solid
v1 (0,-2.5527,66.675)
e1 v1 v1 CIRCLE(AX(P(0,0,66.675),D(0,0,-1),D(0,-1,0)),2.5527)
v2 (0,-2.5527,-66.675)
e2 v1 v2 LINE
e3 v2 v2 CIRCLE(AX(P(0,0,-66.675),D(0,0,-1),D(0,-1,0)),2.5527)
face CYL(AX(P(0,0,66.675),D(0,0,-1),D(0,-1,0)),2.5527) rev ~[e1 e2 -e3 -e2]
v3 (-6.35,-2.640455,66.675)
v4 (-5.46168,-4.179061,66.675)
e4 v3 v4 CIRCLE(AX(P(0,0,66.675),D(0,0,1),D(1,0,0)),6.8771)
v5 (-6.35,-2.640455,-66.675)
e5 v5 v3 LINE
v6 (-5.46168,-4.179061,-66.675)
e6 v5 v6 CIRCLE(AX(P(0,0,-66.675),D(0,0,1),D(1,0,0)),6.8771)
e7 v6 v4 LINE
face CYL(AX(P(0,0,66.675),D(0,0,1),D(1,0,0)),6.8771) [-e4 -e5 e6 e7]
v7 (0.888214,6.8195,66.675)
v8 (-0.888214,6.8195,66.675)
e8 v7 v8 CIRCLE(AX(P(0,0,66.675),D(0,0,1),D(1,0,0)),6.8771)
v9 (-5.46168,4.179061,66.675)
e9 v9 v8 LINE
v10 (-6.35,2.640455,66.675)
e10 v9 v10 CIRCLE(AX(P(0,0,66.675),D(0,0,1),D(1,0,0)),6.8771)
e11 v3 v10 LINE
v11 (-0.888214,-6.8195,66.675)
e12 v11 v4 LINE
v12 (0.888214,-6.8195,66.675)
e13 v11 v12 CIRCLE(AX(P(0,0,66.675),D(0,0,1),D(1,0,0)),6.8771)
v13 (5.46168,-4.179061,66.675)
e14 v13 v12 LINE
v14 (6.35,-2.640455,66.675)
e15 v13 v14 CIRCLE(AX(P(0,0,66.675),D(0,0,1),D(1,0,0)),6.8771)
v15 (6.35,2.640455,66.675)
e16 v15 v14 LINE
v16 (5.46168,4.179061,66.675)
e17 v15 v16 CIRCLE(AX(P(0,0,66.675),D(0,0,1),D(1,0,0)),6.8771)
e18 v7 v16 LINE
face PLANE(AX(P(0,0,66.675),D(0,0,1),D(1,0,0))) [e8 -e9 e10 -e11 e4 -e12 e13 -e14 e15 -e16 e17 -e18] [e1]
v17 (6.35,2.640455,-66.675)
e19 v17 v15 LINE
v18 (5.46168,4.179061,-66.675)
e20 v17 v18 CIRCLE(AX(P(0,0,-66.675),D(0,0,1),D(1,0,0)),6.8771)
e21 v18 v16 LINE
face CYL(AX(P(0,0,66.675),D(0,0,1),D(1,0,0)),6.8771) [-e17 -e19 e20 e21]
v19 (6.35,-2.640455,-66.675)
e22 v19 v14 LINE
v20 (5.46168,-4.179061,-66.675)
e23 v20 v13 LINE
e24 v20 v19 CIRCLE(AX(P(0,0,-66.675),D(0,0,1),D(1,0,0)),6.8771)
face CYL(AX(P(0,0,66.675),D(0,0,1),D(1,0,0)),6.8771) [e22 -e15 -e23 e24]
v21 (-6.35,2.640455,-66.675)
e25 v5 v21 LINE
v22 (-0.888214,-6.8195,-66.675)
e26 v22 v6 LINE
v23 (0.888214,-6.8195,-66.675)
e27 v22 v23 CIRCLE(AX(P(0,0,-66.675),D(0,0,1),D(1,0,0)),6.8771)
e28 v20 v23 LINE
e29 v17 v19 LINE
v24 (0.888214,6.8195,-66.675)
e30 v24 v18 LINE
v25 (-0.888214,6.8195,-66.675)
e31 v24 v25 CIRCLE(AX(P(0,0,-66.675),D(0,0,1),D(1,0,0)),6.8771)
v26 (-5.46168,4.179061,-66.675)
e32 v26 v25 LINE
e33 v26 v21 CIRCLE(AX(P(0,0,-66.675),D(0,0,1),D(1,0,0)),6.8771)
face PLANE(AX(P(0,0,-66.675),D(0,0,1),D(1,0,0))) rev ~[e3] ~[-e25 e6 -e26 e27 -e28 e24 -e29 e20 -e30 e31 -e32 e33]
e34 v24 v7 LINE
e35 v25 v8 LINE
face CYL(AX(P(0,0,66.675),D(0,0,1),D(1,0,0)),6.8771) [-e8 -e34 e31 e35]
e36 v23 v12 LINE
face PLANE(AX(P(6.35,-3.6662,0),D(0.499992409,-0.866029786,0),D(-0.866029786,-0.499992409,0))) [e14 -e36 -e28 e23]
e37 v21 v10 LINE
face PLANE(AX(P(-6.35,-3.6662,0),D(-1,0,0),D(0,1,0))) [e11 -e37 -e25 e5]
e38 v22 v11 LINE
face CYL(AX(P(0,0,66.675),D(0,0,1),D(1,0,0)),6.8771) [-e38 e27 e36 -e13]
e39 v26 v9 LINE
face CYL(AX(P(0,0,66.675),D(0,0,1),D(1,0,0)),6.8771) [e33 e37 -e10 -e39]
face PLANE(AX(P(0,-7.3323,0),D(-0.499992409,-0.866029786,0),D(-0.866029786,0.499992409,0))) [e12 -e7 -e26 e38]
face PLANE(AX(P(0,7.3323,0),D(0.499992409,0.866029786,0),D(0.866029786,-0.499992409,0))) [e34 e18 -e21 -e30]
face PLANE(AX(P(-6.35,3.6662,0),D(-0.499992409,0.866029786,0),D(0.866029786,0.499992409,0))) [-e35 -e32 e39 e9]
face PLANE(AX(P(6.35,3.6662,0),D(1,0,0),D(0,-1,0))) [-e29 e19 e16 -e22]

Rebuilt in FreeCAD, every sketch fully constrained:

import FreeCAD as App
import Part
import Sketcher
Q = App.Units.Quantity

doc = App.newDocument("Part")
body = doc.addObject("PartDesign::Body", "Body")

sketch1 = body.newObject("Sketcher::SketchObject", "Sketch")
sketch1.AttachmentSupport = (doc.getObject("XY_Plane"), [""])
sketch1.MapMode = "FlatFace"
sketch1.addGeometry([
    Part.LineSegment(App.Vector(-6, 4, 0), App.Vector(-6, -4, 0)),
    Part.LineSegment(App.Vector(-6, -4, 0), App.Vector(0, -7, 0)),
    Part.LineSegment(App.Vector(0, -7, 0), App.Vector(6, -4, 0)),
    Part.LineSegment(App.Vector(6, -4, 0), App.Vector(6, 4, 0)),
    Part.LineSegment(App.Vector(6, 4, 0), App.Vector(0, 7, 0)),
    Part.LineSegment(App.Vector(0, 7, 0), App.Vector(-6, 4, 0)),
], False)
sketch1.addConstraint([
    Sketcher.Constraint("Coincident", 0, 2, 1, 1),
    Sketcher.Constraint("Coincident", 1, 2, 2, 1),
    Sketcher.Constraint("Coincident", 2, 2, 3, 1),
    Sketcher.Constraint("Coincident", 3, 2, 4, 1),
    Sketcher.Constraint("Coincident", 4, 2, 5, 1),
    Sketcher.Constraint("Coincident", 5, 2, 0, 1),
    Sketcher.Constraint("Vertical", 0),
    Sketcher.Constraint("Vertical", 3),
    Sketcher.Constraint("Symmetric", 0, 2, 3, 2, -1, 1),
    Sketcher.Constraint("Symmetric", 1, 2, 4, 2, -1, 1),
    Sketcher.Constraint("PointOnObject", 1, 2, -2),
    Sketcher.Constraint("Parallel", 2, 5),
    Sketcher.Constraint("Horizontal", 0, 2, 2, 2),
    Sketcher.Constraint("DistanceX", 0, 2, 2, 2, Q("0.5 in")),
    Sketcher.Constraint("Angle", 1, Q("-29.9995 deg")),
    Sketcher.Constraint("DistanceY", 1, 2, 3, 2, Q("0.433 in")),
])
pad1 = body.newObject("PartDesign::Pad", "Pad")
pad1.Profile = sketch1
pad1.Length = Q("5.25 in")
pad1.Midplane = True

sketch2 = body.newObject("Sketcher::SketchObject", "Sketch001")
sketch2.AttachmentSupport = (doc.getObject("XY_Plane"), [""])
sketch2.MapMode = "FlatFace"
sketch2.AttachmentOffset = App.Placement(App.Vector(0, 0, 2.625 * 25.4), App.Rotation())
sketch2.addGeometry(Part.Circle(App.Vector(0, 0, 0), App.Vector(0, 0, 1), 2.6), False)
sketch2.addConstraint([
    Sketcher.Constraint("Coincident", 0, 3, -1, 1),
    Sketcher.Constraint("Diameter", 0, Q("0.201 in")),
])
doc.recompute()
hole = body.newObject("PartDesign::Hole", "Hole")
hole.Profile = sketch2
hole.ThreadType = "None"
hole.Diameter = Q("0.201 in")
hole.DepthType = "ThroughAll"

sketch3 = body.newObject("Sketcher::SketchObject", "Sketch002")
sketch3.AttachmentSupport = (doc.getObject("XY_Plane"), [""])
sketch3.MapMode = "FlatFace"
sketch3.AttachmentOffset = App.Placement(App.Vector(0, 0, 2.625 * 25.4), App.Rotation())
sketch3.addGeometry([
    Part.Circle(App.Vector(0, 0, 0), App.Vector(0, 0, 1), 9),
    Part.Circle(App.Vector(0, 0, 0), App.Vector(0, 0, 1), 7),
], False)
sketch3.addConstraint([
    Sketcher.Constraint("Coincident", 0, 3, -1, 1),
    Sketcher.Constraint("Coincident", 1, 3, -1, 1),
    Sketcher.Constraint("Diameter", 0, Q("0.7 in")),
    Sketcher.Constraint("Diameter", 1, Q("0.5415 in")),
])
pocket1 = body.newObject("PartDesign::Pocket", "Pocket")
pocket1.Profile = sketch3
pocket1.Type = "ThroughAll"

doc.recompute()
